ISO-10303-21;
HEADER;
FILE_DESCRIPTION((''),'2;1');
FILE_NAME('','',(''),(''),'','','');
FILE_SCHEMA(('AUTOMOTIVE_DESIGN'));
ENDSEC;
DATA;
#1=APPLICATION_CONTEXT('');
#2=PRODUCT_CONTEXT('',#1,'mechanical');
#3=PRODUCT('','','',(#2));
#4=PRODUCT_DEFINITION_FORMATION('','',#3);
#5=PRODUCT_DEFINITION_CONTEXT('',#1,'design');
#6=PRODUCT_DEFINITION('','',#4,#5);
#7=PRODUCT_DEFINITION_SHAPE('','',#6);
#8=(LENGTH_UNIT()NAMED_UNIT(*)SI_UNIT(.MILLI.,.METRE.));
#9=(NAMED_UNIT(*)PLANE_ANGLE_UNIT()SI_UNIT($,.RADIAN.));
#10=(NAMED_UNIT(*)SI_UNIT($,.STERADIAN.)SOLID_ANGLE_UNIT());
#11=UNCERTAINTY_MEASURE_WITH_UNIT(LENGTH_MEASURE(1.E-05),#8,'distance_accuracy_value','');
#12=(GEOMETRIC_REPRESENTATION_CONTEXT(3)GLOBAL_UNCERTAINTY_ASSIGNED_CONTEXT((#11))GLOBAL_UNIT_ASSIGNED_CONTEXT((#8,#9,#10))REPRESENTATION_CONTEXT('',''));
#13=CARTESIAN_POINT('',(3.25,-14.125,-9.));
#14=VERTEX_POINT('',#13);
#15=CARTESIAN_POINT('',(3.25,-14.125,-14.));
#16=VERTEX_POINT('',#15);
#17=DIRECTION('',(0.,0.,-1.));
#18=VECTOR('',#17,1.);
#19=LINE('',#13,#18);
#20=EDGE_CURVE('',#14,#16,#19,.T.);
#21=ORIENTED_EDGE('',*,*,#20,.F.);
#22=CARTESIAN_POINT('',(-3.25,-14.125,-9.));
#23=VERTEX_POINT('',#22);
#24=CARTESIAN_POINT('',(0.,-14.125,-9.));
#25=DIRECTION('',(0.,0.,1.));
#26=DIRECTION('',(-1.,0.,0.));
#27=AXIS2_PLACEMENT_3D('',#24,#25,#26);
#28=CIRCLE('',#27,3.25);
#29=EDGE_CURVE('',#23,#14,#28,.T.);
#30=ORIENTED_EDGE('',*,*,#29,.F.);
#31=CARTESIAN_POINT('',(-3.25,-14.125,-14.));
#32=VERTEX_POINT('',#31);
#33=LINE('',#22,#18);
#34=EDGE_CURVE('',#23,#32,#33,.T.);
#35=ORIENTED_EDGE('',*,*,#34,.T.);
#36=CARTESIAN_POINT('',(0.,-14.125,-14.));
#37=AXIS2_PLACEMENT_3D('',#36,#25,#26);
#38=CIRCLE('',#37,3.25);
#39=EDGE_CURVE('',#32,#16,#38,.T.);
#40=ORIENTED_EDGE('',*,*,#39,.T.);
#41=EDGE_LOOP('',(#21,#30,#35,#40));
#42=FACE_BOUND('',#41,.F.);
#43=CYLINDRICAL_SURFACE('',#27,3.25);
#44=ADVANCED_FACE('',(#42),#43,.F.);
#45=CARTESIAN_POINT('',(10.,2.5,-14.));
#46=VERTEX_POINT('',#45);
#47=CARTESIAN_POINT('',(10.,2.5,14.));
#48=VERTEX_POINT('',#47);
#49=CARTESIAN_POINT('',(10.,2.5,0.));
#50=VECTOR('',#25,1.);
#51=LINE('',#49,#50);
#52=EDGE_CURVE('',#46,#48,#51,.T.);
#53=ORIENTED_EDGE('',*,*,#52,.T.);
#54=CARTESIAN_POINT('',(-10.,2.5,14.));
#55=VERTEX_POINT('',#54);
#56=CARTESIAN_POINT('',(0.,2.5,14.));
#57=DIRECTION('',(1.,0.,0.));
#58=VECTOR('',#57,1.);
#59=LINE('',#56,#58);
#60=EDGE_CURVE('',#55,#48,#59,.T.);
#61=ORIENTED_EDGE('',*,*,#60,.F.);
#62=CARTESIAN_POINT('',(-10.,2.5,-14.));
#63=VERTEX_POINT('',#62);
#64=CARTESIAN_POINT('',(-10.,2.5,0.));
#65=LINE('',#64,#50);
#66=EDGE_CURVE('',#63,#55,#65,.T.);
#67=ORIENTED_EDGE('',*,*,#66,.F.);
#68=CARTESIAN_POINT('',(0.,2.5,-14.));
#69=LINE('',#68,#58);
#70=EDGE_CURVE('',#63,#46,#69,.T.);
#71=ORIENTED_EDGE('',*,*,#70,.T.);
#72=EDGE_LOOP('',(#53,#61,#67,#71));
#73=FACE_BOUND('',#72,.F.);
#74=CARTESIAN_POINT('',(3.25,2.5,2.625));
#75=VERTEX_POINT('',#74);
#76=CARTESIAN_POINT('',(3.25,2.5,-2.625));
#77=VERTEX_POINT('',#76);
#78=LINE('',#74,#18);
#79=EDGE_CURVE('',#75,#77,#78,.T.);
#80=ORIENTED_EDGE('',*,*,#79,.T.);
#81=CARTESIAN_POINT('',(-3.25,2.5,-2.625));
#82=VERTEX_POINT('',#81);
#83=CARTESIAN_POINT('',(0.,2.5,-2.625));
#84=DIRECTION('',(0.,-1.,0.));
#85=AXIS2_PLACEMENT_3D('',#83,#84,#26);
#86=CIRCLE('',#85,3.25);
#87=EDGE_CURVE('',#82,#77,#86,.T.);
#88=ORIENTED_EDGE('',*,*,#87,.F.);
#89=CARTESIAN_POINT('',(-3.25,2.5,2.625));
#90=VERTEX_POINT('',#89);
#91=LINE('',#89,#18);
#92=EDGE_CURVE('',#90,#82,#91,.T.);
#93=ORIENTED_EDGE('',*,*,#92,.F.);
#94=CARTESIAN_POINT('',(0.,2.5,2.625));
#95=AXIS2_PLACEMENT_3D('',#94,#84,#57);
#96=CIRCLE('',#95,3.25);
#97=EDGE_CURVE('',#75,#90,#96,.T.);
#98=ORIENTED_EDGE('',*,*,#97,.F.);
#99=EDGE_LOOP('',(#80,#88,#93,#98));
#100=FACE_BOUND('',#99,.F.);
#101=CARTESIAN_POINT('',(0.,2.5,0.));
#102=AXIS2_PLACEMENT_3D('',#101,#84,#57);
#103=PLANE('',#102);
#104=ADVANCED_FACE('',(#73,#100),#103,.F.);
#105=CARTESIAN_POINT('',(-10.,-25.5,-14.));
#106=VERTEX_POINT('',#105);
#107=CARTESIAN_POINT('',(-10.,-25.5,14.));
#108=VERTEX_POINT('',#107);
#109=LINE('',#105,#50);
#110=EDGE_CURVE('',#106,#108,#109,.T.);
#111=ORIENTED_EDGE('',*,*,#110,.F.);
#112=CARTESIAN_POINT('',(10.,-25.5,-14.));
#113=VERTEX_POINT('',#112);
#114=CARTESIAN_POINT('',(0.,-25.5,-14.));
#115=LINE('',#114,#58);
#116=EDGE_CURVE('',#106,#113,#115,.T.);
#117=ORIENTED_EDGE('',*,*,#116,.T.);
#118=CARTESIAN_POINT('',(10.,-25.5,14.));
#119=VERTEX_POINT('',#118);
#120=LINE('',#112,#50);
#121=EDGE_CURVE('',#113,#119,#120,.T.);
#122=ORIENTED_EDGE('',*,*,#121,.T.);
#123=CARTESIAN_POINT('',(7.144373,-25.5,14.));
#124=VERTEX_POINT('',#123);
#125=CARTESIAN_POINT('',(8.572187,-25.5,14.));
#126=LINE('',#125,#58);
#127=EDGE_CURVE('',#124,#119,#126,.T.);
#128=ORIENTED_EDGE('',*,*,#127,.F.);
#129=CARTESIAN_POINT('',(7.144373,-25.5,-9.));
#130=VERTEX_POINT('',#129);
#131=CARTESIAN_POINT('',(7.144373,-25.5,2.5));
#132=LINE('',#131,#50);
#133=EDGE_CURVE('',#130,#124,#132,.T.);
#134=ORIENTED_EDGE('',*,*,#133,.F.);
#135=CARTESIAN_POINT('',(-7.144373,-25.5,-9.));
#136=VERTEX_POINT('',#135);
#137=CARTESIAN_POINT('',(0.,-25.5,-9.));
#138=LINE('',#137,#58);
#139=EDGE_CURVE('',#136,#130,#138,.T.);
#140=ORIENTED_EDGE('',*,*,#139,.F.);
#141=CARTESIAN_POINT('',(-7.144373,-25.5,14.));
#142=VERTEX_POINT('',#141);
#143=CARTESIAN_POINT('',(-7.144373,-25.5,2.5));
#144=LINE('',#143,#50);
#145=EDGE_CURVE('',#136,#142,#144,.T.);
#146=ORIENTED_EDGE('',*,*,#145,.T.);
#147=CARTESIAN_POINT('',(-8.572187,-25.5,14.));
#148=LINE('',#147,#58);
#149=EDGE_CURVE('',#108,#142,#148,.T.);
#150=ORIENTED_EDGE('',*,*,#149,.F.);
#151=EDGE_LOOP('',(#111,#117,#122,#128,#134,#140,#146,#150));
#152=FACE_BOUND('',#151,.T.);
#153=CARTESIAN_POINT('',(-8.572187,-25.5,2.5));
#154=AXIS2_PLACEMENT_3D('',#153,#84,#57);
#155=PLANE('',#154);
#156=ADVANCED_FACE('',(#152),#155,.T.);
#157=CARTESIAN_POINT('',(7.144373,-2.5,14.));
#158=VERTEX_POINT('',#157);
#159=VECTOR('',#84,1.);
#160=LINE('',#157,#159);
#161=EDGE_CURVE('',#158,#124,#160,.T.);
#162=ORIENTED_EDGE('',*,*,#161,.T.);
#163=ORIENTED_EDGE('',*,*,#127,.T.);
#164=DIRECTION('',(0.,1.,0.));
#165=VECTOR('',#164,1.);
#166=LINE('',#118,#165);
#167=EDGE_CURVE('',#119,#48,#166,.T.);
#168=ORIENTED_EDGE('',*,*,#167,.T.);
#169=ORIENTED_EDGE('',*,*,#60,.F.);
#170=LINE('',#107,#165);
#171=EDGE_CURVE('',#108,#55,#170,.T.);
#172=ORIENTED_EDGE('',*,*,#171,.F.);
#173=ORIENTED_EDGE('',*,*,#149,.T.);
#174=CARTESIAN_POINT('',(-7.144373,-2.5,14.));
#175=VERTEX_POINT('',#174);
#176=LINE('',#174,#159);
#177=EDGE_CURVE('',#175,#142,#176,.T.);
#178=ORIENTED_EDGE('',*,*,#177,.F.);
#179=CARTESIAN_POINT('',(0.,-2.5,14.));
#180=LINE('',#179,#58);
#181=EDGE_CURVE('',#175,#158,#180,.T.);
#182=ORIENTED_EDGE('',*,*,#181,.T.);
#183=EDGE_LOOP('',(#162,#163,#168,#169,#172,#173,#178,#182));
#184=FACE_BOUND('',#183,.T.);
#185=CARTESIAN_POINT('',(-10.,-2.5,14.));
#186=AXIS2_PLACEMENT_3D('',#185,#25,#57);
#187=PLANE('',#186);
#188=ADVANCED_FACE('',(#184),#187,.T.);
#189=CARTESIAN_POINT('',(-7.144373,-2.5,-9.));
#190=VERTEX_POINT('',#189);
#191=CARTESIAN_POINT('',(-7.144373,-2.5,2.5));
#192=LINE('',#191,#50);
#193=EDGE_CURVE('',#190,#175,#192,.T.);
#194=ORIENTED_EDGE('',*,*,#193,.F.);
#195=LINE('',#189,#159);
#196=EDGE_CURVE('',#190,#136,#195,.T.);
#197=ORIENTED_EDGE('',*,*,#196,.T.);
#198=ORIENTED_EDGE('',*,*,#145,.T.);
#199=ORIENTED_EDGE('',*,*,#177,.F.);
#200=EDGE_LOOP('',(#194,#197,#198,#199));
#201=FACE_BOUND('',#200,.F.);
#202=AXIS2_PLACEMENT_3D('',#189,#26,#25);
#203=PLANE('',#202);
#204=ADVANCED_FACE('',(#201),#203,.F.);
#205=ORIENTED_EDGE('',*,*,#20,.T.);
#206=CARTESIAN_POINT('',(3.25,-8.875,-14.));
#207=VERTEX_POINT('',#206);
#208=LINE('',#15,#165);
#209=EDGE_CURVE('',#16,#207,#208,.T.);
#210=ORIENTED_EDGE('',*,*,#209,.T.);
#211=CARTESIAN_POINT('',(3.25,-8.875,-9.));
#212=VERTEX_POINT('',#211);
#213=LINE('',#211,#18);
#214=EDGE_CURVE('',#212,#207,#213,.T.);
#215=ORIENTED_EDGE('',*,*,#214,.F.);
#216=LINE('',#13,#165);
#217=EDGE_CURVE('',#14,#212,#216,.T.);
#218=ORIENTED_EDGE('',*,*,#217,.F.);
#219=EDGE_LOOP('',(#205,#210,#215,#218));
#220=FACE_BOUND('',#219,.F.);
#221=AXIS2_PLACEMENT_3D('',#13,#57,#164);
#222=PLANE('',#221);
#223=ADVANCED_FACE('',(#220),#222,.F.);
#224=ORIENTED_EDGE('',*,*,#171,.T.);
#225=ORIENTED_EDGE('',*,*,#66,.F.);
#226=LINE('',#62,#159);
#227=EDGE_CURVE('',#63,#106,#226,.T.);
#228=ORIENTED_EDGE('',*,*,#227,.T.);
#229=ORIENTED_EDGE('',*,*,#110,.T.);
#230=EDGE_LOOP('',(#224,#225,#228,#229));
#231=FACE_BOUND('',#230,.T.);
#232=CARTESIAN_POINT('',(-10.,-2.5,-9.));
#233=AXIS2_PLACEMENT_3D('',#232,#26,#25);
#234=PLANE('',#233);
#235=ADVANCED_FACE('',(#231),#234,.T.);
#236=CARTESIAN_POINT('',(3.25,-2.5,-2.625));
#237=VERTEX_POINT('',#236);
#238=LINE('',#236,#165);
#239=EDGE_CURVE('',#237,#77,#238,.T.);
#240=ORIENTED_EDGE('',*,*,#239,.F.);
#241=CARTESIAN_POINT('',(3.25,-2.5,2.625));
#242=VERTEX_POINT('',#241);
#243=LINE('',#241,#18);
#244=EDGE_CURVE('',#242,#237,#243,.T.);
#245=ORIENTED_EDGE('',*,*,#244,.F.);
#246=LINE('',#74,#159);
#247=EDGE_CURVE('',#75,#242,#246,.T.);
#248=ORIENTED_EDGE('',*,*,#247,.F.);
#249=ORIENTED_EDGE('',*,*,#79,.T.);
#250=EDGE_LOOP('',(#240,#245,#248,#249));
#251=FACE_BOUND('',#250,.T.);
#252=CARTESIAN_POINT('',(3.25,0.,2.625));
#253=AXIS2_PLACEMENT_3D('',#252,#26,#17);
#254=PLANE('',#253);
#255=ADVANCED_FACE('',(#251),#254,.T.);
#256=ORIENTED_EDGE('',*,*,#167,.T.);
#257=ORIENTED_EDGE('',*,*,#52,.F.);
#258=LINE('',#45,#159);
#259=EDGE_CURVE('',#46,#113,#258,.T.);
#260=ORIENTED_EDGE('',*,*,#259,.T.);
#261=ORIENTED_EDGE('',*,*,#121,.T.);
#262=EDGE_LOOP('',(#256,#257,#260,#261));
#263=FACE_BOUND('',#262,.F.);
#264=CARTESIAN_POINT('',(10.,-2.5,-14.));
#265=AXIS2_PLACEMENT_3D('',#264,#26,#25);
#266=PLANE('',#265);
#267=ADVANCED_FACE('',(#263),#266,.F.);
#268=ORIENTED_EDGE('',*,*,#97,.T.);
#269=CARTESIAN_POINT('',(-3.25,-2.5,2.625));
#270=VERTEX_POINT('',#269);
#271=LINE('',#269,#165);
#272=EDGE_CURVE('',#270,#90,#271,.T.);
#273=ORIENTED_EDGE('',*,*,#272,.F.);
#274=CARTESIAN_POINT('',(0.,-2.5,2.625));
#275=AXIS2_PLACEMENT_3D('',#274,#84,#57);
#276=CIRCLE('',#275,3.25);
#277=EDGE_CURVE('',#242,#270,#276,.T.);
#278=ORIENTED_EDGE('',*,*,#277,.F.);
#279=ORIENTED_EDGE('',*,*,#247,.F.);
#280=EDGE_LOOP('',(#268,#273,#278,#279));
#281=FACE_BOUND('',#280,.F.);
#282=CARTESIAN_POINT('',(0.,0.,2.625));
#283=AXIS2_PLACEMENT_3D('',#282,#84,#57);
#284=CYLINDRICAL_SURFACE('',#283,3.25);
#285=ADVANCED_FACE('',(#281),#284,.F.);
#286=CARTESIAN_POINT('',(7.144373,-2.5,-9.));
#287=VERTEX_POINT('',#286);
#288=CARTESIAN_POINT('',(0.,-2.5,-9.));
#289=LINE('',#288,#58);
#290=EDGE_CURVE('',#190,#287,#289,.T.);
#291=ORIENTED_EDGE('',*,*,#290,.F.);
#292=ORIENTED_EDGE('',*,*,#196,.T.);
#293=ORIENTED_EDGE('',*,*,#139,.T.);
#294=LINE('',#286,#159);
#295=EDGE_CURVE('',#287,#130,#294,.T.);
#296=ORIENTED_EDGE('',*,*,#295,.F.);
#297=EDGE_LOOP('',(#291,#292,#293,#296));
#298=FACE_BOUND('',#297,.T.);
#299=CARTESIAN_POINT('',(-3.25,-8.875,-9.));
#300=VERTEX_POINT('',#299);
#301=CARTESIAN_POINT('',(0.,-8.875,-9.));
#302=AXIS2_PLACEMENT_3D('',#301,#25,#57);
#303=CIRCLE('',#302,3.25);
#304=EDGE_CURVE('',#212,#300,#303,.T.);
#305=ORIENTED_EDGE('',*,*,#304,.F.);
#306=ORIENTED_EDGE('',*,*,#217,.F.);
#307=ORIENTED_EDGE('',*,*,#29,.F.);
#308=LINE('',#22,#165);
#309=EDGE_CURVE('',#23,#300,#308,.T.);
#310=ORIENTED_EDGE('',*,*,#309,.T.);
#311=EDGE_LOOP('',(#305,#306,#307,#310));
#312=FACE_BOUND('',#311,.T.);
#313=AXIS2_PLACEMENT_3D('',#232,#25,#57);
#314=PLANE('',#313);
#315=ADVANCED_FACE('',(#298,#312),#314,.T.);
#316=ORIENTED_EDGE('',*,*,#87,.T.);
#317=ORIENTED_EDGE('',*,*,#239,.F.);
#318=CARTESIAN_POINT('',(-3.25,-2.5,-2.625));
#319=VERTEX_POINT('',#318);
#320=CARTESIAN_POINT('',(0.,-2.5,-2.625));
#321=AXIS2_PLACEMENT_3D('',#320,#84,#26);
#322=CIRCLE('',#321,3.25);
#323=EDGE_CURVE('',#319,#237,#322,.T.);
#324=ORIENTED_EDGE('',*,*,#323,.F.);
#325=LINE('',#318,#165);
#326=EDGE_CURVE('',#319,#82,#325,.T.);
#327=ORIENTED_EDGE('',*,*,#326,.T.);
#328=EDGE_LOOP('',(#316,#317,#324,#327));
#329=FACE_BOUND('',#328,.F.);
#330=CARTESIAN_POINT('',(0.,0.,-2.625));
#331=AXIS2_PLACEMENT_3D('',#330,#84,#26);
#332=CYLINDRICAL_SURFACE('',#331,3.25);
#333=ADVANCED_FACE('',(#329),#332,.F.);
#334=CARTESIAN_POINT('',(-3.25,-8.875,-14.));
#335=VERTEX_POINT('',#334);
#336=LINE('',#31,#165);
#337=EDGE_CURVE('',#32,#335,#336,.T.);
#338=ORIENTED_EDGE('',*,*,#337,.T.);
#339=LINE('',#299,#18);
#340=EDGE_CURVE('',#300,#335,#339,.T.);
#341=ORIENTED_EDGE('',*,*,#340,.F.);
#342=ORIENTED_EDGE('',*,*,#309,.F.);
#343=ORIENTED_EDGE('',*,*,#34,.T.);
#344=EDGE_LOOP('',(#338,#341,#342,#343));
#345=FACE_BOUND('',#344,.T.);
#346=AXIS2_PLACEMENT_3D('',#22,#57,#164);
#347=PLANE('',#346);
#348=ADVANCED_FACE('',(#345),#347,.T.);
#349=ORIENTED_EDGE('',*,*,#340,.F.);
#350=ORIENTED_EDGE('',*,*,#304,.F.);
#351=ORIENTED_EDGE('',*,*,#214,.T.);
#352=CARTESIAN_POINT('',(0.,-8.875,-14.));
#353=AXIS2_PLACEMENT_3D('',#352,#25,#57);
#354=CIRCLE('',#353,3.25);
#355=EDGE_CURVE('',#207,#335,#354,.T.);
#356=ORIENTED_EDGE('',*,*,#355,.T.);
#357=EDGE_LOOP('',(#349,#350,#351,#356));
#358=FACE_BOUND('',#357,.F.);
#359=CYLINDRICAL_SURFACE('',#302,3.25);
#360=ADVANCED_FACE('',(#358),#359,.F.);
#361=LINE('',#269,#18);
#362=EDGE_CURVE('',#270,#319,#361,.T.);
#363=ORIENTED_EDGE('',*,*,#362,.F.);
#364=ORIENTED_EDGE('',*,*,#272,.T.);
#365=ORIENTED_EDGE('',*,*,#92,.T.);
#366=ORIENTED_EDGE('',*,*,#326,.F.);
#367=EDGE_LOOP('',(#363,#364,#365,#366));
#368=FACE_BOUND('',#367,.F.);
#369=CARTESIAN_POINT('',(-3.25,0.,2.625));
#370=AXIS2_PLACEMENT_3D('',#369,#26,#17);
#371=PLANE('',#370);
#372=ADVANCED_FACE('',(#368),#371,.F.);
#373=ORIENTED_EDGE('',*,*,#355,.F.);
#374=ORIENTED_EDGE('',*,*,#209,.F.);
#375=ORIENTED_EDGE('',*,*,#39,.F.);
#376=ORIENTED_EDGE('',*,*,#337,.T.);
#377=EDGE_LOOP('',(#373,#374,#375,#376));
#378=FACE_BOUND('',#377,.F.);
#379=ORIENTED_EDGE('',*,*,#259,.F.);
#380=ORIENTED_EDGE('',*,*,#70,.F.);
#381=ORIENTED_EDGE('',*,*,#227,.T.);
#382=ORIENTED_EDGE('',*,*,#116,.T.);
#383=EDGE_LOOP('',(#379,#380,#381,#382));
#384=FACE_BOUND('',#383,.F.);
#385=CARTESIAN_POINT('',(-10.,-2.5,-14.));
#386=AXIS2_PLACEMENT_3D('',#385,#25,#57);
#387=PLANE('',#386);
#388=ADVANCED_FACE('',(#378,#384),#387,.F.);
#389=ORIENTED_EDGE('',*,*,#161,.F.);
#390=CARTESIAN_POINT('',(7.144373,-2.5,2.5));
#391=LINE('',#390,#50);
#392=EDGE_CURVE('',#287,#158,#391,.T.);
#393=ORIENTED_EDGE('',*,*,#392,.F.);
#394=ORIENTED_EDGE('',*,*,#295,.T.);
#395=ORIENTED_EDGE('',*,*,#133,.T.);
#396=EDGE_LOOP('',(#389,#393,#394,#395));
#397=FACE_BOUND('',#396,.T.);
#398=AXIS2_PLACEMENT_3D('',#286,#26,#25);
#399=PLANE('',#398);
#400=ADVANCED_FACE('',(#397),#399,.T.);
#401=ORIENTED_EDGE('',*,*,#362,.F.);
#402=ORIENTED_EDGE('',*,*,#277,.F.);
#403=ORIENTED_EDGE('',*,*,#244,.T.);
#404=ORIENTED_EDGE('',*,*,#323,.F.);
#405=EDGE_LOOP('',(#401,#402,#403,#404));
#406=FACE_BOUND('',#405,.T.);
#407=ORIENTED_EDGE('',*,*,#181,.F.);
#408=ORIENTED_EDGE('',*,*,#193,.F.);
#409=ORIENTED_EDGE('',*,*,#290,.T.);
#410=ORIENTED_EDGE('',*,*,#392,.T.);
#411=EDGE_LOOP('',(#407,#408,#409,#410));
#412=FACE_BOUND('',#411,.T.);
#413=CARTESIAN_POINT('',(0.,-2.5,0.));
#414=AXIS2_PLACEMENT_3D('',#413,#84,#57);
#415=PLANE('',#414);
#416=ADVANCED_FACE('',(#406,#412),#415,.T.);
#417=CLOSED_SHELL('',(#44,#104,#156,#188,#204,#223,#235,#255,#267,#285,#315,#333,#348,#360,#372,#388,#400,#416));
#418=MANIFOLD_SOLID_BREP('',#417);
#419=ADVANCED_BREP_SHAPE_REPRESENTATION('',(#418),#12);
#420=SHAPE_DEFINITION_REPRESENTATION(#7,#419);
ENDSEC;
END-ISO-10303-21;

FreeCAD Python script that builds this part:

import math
import FreeCAD as App
import Part
import Sketcher
Q = App.Units.Quantity

doc = App.newDocument("Part")
body = doc.addObject("PartDesign::Body", "Body")

# Sketch on XZ plane
sketch1 = doc.addObject("Sketcher::SketchObject", "Sketch")
body.addObject(sketch1)
sketch1.AttachmentSupport = (doc.XZ_Plane, [""])
sketch1.MapMode = "FlatFace"
sketch1.addGeometry([
    Part.LineSegment(App.Vector(-10, 14, 0), App.Vector(-10, -14, 0)),  # 0
    Part.LineSegment(App.Vector(-10, -14, 0), App.Vector(10, -14, 0)),  # 1
    Part.LineSegment(App.Vector(10, -14, 0), App.Vector(10, 14, 0)),  # 2
    Part.LineSegment(App.Vector(10, 14, 0), App.Vector(-10, 14, 0)),  # 3
    Part.ArcOfCircle(Part.Circle(App.Vector(0, 2.6, 0), App.Vector(0, 0, 1), 3.2), math.radians(0), math.radians(180)),  # 4
    Part.LineSegment(App.Vector(3.2, 2.6, 0), App.Vector(3.2, -2.6, 0)),  # 5
    Part.ArcOfCircle(Part.Circle(App.Vector(0, -2.6, 0), App.Vector(0, 0, 1), 3.2), math.radians(180), math.radians(360)),  # 6
    Part.LineSegment(App.Vector(-3.2, -2.6, 0), App.Vector(-3.2, 2.6, 0)),  # 7
], False)
sketch1.addConstraint([
    Sketcher.Constraint("Coincident", 0, 2, 1, 1),
    Sketcher.Constraint("Coincident", 1, 2, 2, 1),
    Sketcher.Constraint("Coincident", 2, 2, 3, 1),
    Sketcher.Constraint("Coincident", 3, 2, 0, 1),
    Sketcher.Constraint("Tangent", 4, 1, 5, 1),
    Sketcher.Constraint("Tangent", 5, 2, 6, 2),
    Sketcher.Constraint("Tangent", 6, 1, 7, 1),
    Sketcher.Constraint("Tangent", 7, 2, 4, 2),
    Sketcher.Constraint("Vertical", 0),
    Sketcher.Constraint("Horizontal", 1),
    Sketcher.Constraint("Vertical", 2),
    Sketcher.Constraint("Horizontal", 3),
    Sketcher.Constraint("Vertical", 5),
    Sketcher.Constraint("Vertical", 7),
    Sketcher.Constraint("Symmetric", 4, 3, 6, 3, -1, 1),
    Sketcher.Constraint("Symmetric", 0, 2, 2, 2, -1, 1),
    Sketcher.Constraint("DistanceX", 1, 1, 1, 2, Q("20 mm")),
    Sketcher.Constraint("DistanceY", 0, 2, 0, 1, Q("28 mm")),
    Sketcher.Constraint("Radius", 4, Q("3.25 mm")),
    Sketcher.Constraint("DistanceY", 5, 2, 5, 1, Q("5.25 mm")),
])
pad1 = doc.addObject("PartDesign::Pad", "Pad")
body.addObject(pad1)
pad1.Profile = sketch1
pad1.Length = 5
pad1.Midplane = True

# Sketch on XZ plane
sketch2 = doc.addObject("Sketcher::SketchObject", "Sketch001")
body.addObject(sketch2)
sketch2.AttachmentSupport = (doc.XZ_Plane, [""])
sketch2.MapMode = "FlatFace"
sketch2.AttachmentOffset = App.Placement(App.Vector(0, 0, 2.5), App.Rotation())
sketch2.addGeometry([
    Part.LineSegment(App.Vector(-10, -9, 0), App.Vector(-10, -14, 0)),
    Part.LineSegment(App.Vector(-10, -14, 0), App.Vector(10, -14, 0)),
    Part.LineSegment(App.Vector(10, -14, 0), App.Vector(10, -9, 0)),
    Part.LineSegment(App.Vector(10, -9, 0), App.Vector(-10, -9, 0)),
], False)
sketch2.addConstraint([
    Sketcher.Constraint("Coincident", 0, 2, 1, 1),
    Sketcher.Constraint("Coincident", 1, 2, 2, 1),
    Sketcher.Constraint("Coincident", 2, 2, 3, 1),
    Sketcher.Constraint("Coincident", 3, 2, 0, 1),
    Sketcher.Constraint("Vertical", 0),
    Sketcher.Constraint("Horizontal", 1),
    Sketcher.Constraint("Vertical", 2),
    Sketcher.Constraint("Horizontal", 3),
    Sketcher.Constraint("DistanceX", 1, 1, 1, 2, Q("20 mm")),
    Sketcher.Constraint("DistanceY", 0, 2, 0, 1, Q("5 mm")),
    Sketcher.Constraint("DistanceX", 0, 2, -1, 1, Q("10 mm")),
    Sketcher.Constraint("DistanceY", 0, 2, -1, 1, Q("14 mm")),
])
pad2 = doc.addObject("PartDesign::Pad", "Pad001")
body.addObject(pad2)
pad2.Profile = sketch2
pad2.Length = 23

# Sketch on XY plane
sketch3 = doc.addObject("Sketcher::SketchObject", "Sketch002")
body.addObject(sketch3)
sketch3.AttachmentSupport = (doc.XY_Plane, [""])
sketch3.MapMode = "FlatFace"
sketch3.AttachmentOffset = App.Placement(App.Vector(0, 0, -9), App.Rotation())
sketch3.addGeometry([
    Part.ArcOfCircle(Part.Circle(App.Vector(0, -14.1, 0), App.Vector(0, 0, 1), 3.2), math.radians(180), math.radians(360)),
    Part.LineSegment(App.Vector(3.2, -14.1, 0), App.Vector(3.2, -8.9, 0)),
    Part.ArcOfCircle(Part.Circle(App.Vector(0, -8.9, 0), App.Vector(0, 0, 1), 3.2), math.radians(0), math.radians(180)),
    Part.LineSegment(App.Vector(-3.2, -8.9, 0), App.Vector(-3.2, -14.1, 0)),
], False)
sketch3.addConstraint([
    Sketcher.Constraint("Tangent", 0, 2, 1, 1),
    Sketcher.Constraint("Tangent", 1, 2, 2, 1),
    Sketcher.Constraint("Tangent", 2, 2, 3, 1),
    Sketcher.Constraint("Tangent", 3, 2, 0, 1),
    Sketcher.Constraint("Vertical", 1),
    Sketcher.Constraint("Vertical", 3),
    Sketcher.Constraint("PointOnObject", 0, 3, -2),
    Sketcher.Constraint("Radius", 0, Q("3.25 mm")),
    Sketcher.Constraint("DistanceY", 1, 1, 1, 2, Q("5.25 mm")),
    Sketcher.Constraint("DistanceY", 0, 3, -1, 1, Q("14.125 mm")),
])
pocket1 = doc.addObject("PartDesign::Pocket", "Pocket")
body.addObject(pocket1)
pocket1.Profile = sketch3
pocket1.Length = 5

# Sketch on XZ plane
sketch4 = doc.addObject("Sketcher::SketchObject", "Sketch003")
body.addObject(sketch4)
sketch4.AttachmentSupport = (doc.XZ_Plane, [""])
sketch4.MapMode = "FlatFace"
sketch4.AttachmentOffset = App.Placement(App.Vector(0, 0, 2.5), App.Rotation())
sketch4.addGeometry([
    Part.LineSegment(App.Vector(-10, 14, 0), App.Vector(-10, -9, 0)),  # 0
    Part.LineSegment(App.Vector(-10, -9, 0), App.Vector(-7.1, -9, 0)),  # 1
    Part.LineSegment(App.Vector(-7.1, -9, 0), App.Vector(-7.1, 14, 0)),  # 2
    Part.LineSegment(App.Vector(-7.1, 14, 0), App.Vector(-10, 14, 0)),  # 3
    Part.LineSegment(App.Vector(7.1, 14, 0), App.Vector(7.1, -9, 0)),  # 4
    Part.LineSegment(App.Vector(7.1, -9, 0), App.Vector(10, -9, 0)),  # 5
    Part.LineSegment(App.Vector(10, -9, 0), App.Vector(10, 14, 0)),  # 6
    Part.LineSegment(App.Vector(10, 14, 0), App.Vector(7.1, 14, 0)),  # 7
], False)
sketch4.addConstraint([
    Sketcher.Constraint("Coincident", 0, 2, 1, 1),
    Sketcher.Constraint("Coincident", 1, 2, 2, 1),
    Sketcher.Constraint("Coincident", 2, 2, 3, 1),
    Sketcher.Constraint("Coincident", 3, 2, 0, 1),
    Sketcher.Constraint("Coincident", 4, 2, 5, 1),
    Sketcher.Constraint("Coincident", 5, 2, 6, 1),
    Sketcher.Constraint("Coincident", 6, 2, 7, 1),
    Sketcher.Constraint("Coincident", 7, 2, 4, 1),
    Sketcher.Constraint("Vertical", 0),
    Sketcher.Constraint("Horizontal", 1),
    Sketcher.Constraint("Vertical", 2),
    Sketcher.Constraint("Horizontal", 3),
    Sketcher.Constraint("Vertical", 4),
    Sketcher.Constraint("Horizontal", 5),
    Sketcher.Constraint("Vertical", 6),
    Sketcher.Constraint("Horizontal", 7),
    Sketcher.Constraint("Symmetric", 1, 2, 4, 2, -2),
    Sketcher.Constraint("Symmetric", 3, 2, 6, 2, -2),
    Sketcher.Constraint("DistanceY", 0, 2, 0, 1, Q("23 mm")),
    Sketcher.Constraint("DistanceX", 0, 2, -1, 1, Q("10 mm")),
    Sketcher.Constraint("DistanceY", 0, 2, -1, 1, Q("9 mm")),
    Sketcher.Constraint("DistanceX", 1, 1, 1, 2, Q("2.855627 mm")),
])
pad3 = doc.addObject("PartDesign::Pad", "Pad002")
body.addObject(pad3)
pad3.Profile = sketch4
pad3.Length = 23

doc.recompute()
